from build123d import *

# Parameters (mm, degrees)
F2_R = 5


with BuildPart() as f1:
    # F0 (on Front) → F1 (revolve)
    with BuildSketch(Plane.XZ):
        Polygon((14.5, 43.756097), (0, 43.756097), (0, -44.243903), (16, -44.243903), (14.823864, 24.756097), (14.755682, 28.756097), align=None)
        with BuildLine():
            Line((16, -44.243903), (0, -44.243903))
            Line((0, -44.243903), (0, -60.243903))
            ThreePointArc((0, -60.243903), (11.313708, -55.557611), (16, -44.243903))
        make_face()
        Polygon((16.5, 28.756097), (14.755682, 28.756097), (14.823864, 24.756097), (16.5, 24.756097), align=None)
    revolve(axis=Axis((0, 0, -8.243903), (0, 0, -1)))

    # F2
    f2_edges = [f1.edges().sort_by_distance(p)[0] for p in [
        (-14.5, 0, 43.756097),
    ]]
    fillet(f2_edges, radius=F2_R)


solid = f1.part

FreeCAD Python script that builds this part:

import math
import FreeCAD as App
import Part
import Sketcher

V = App.Vector


def edges_at(feature, points):
    """Names of the edges that pass closest to the given points."""
    edges = feature.Shape.Edges
    near = lambda p: min(range(len(edges)), key=lambda i: edges[i].distToShape(Part.Vertex(*p))[0])
    return sorted({f"Edge{near(p) + 1}" for p in points})

doc = App.newDocument("Part")
body = doc.addObject("PartDesign::Body", "Body")

# Sketch on XZ plane
sketch1 = doc.addObject("Sketcher::SketchObject", "Sketch")
body.addObject(sketch1)
sketch1.AttachmentSupport = (doc.XZ_Plane, [""])
sketch1.MapMode = "FlatFace"
sketch1.addGeometry([
    Part.LineSegment(V(14.5, 43.8, 0), V(0, 43.8, 0)),  # 0
    Part.LineSegment(V(0, 43.8, 0), V(0, -60.2, 0)),  # 1
    Part.ArcOfCircle(Part.Circle(V(0, -44.2, 0), V(0, 0, 1), 16), math.radians(-90), math.radians(0)),  # 2
    Part.LineSegment(V(16, -44.2, 0), V(14.8, 24.8, 0)),  # 3
    Part.LineSegment(V(14.8, 24.8, 0), V(16.5, 24.8, 0)),  # 4
    Part.LineSegment(V(16.5, 24.8, 0), V(16.5, 28.8, 0)),  # 5
    Part.LineSegment(V(16.5, 28.8, 0), V(14.8, 28.8, 0)),  # 6
    Part.LineSegment(V(14.8, 28.8, 0), V(14.5, 43.8, 0)),  # 7
], False)
sketch1.addConstraint([
    Sketcher.Constraint("Coincident", 0, 2, 1, 1),
    Sketcher.Constraint("Coincident", 1, 2, 2, 1),
    Sketcher.Constraint("Coincident", 2, 2, 3, 1),
    Sketcher.Constraint("Coincident", 3, 2, 4, 1),
    Sketcher.Constraint("Coincident", 4, 2, 5, 1),
    Sketcher.Constraint("Coincident", 5, 2, 6, 1),
    Sketcher.Constraint("Coincident", 6, 2, 7, 1),
    Sketcher.Constraint("Coincident", 7, 2, 0, 1),
    Sketcher.Constraint("Horizontal", 0),
    Sketcher.Constraint("Vertical", 1),
    Sketcher.Constraint("Horizontal", 4),
    Sketcher.Constraint("Vertical", 5),
    Sketcher.Constraint("Horizontal", 6),
    Sketcher.Constraint("PointOnObject", 2, 3, -2),
    Sketcher.Constraint("PointOnObject", 0, 2, -2),
    Sketcher.Constraint("Parallel", 3, 7),
    Sketcher.Constraint("Radius", 2, 16.000002),
    Sketcher.Constraint("DistanceY", 1, 2, 1, 1, 104.0),
    Sketcher.Constraint("DistanceY", 5, 1, 5, 2, 4.0),
    Sketcher.Constraint("DistanceX", 0, 2, 0, 1, 14.5),
    Sketcher.Constraint("DistanceY", 1, 2, 2, 2, 16.0),
    Sketcher.Constraint("DistanceY", 3, 2, 0, 2, 19.0),
    Sketcher.Constraint("DistanceX", 7, 2, 5, 2, 2.0),
    Sketcher.Constraint("DistanceY", 2, 3, -1, 1, 44.243901),
    Sketcher.Constraint("DistanceX", 4, 1, 4, 2, 1.676136),
])
revolution = doc.addObject("PartDesign::Revolution", "Revolution")
body.addObject(revolution)
revolution.Profile = sketch1
revolution.ReferenceAxis = (sketch1, ["V_Axis"])
revolution.Angle = 360
doc.recompute()

fillet = doc.addObject("PartDesign::Fillet", "Fillet")
body.addObject(fillet)
fillet.Base = (revolution, edges_at(revolution, [(-14.5, 0, 43.756)]))
fillet.Radius = 5

doc.recompute()
